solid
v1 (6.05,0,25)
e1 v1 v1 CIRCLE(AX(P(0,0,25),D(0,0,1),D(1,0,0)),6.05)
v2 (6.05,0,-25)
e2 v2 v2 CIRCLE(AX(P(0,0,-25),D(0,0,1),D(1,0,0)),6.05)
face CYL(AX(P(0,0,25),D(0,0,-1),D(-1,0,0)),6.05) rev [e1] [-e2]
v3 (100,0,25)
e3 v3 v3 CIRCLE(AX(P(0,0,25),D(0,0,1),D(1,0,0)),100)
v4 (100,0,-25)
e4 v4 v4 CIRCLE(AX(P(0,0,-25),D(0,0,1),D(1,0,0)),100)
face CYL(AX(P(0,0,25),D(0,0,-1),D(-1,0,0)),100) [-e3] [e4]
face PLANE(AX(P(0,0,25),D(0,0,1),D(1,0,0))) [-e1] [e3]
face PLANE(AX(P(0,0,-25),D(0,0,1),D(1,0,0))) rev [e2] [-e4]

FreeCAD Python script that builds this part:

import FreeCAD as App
import Part
import Sketcher
from FreeCAD import Vector
Q = App.Units.Quantity

doc = App.newDocument("Part")
body = doc.addObject("PartDesign::Body", "Body")

# Sketch on XY plane
sketch1 = doc.addObject("Sketcher::SketchObject", "Sketch")
body.addObject(sketch1)
sketch1.AttachmentSupport = (doc.XY_Plane, [""])
sketch1.MapMode = "FlatFace"
sketch1.addGeometry([
    Part.Circle(Vector(0, 0, 0), Vector(0, 0, 1), 100),
    Part.Circle(Vector(0, 0, 0), Vector(0, 0, 1), 6),
], False)
sketch1.addConstraint([
    Sketcher.Constraint("Coincident", 0, 3, -1, 1),
    Sketcher.Constraint("Coincident", 1, 3, -1, 1),
    Sketcher.Constraint("Diameter", 0, Q("200 mm")),
    Sketcher.Constraint("Diameter", 1, Q("12.1 mm")),
])
pad1 = doc.addObject("PartDesign::Pad", "Pad")
body.addObject(pad1)
pad1.Profile = sketch1
pad1.Length = 50
pad1.Midplane = True

doc.recompute()
